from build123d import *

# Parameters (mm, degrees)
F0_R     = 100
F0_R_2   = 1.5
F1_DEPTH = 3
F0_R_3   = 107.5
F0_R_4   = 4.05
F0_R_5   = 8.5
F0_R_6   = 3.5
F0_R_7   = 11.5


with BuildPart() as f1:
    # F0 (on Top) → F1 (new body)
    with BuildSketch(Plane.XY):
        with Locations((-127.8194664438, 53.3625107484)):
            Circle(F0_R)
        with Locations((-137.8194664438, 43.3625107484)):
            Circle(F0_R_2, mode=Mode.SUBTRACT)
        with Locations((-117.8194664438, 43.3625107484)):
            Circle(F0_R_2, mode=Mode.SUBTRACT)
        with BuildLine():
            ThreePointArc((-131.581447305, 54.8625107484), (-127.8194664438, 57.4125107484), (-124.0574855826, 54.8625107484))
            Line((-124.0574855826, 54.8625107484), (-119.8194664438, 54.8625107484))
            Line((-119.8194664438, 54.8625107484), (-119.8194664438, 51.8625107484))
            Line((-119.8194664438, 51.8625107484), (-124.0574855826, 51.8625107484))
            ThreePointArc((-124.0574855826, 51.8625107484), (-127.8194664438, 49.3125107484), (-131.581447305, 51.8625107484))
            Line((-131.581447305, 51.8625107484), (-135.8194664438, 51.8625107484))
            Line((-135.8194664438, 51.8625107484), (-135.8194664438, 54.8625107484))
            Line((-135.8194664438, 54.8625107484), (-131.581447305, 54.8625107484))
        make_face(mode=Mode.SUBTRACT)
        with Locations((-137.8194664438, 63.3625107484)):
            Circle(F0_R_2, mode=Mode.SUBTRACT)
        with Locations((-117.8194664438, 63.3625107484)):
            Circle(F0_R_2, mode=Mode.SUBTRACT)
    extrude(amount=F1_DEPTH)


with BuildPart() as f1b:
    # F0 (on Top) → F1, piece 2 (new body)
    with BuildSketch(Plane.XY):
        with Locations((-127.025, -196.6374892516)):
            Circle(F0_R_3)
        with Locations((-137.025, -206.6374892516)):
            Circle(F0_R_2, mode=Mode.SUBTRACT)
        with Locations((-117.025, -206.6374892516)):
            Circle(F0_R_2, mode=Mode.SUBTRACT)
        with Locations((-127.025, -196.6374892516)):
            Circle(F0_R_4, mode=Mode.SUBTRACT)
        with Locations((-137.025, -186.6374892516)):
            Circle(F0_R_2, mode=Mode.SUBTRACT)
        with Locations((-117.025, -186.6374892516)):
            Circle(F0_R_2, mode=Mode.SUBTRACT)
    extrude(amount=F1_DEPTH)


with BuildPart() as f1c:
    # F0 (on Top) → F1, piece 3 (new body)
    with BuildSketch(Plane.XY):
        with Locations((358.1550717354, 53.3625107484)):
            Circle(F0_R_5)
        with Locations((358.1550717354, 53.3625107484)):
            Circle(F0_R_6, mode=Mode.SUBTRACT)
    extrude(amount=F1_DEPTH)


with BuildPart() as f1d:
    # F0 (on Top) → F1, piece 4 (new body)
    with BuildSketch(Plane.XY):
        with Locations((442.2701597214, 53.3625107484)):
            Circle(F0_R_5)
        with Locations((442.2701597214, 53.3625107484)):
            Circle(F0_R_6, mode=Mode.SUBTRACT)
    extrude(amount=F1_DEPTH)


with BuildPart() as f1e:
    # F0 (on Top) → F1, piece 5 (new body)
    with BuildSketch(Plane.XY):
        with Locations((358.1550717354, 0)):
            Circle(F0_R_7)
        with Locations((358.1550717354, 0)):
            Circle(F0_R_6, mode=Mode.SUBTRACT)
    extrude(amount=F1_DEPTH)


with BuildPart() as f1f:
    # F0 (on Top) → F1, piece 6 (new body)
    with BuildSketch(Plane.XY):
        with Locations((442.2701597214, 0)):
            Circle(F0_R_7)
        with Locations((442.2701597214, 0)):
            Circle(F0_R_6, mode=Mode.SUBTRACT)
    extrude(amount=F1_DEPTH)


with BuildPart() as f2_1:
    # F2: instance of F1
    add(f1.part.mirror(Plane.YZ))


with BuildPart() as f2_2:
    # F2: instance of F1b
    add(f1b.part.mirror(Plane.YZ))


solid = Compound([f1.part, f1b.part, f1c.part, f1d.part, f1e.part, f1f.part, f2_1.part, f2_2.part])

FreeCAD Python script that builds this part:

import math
import FreeCAD as App
import Part
import Sketcher

doc = App.newDocument("Part")
body = doc.addObject("PartDesign::Body", "Body")

sketch1 = doc.addObject("Sketcher::SketchObject", "Sketch")
body.addObject(sketch1)
sketch1.AttachmentSupport = (doc.XY_Plane, [""])
sketch1.MapMode = "FlatFace"
sketch1.addGeometry(Part.Circle(App.Vector(-127.8, 53.4, 0), App.Vector(0, 0, 1), 100), False)
sketch1.addGeometry(Part.Circle(App.Vector(-137.8, 43.4, 0), App.Vector(0, 0, 1), 1.5), False)
sketch1.addGeometry(Part.Circle(App.Vector(-117.8, 43.4, 0), App.Vector(0, 0, 1), 1.5), False)
sketch1.addGeometry(Part.Circle(App.Vector(-137.8, 63.4, 0), App.Vector(0, 0, 1), 1.5), False)
sketch1.addGeometry(Part.LineSegment(App.Vector(-135.8, 54.9, 0), App.Vector(-131.6, 54.9, 0)), False)
sketch1.addGeometry(Part.ArcOfCircle(Part.Circle(App.Vector(-127.8, 53.4, 0), App.Vector(0, 0, 1), 4), math.radians(22), math.radians(158)), False)
sketch1.addGeometry(Part.LineSegment(App.Vector(-124.1, 54.9, 0), App.Vector(-119.8, 54.9, 0)), False)
sketch1.addGeometry(Part.LineSegment(App.Vector(-119.8, 54.9, 0), App.Vector(-119.8, 51.9, 0)), False)
sketch1.addGeometry(Part.LineSegment(App.Vector(-119.8, 51.9, 0), App.Vector(-124.1, 51.9, 0)), False)
sketch1.addGeometry(Part.ArcOfCircle(Part.Circle(App.Vector(-127.8, 53.4, 0), App.Vector(0, 0, 1), 4), math.radians(-158), math.radians(-22)), False)
sketch1.addGeometry(Part.LineSegment(App.Vector(-131.6, 51.9, 0), App.Vector(-135.8, 51.9, 0)), False)
sketch1.addGeometry(Part.LineSegment(App.Vector(-135.8, 51.9, 0), App.Vector(-135.8, 54.9, 0)), False)
sketch1.addGeometry(Part.Circle(App.Vector(-117.8, 63.4, 0), App.Vector(0, 0, 1), 1.5), False)
sketch1.addConstraint(Sketcher.Constraint("Coincident", 4, 2, 5, 2))
sketch1.addConstraint(Sketcher.Constraint("Coincident", 5, 1, 6, 1))
sketch1.addConstraint(Sketcher.Constraint("Coincident", 6, 2, 7, 1))
sketch1.addConstraint(Sketcher.Constraint("Coincident", 7, 2, 8, 1))
sketch1.addConstraint(Sketcher.Constraint("Coincident", 8, 2, 9, 2))
sketch1.addConstraint(Sketcher.Constraint("Coincident", 9, 1, 10, 1))
sketch1.addConstraint(Sketcher.Constraint("Coincident", 10, 2, 11, 1))
sketch1.addConstraint(Sketcher.Constraint("Coincident", 11, 2, 4, 1))
sketch1.addConstraint(Sketcher.Constraint("Horizontal", 4))
sketch1.addConstraint(Sketcher.Constraint("Horizontal", 6))
sketch1.addConstraint(Sketcher.Constraint("Vertical", 7))
sketch1.addConstraint(Sketcher.Constraint("Horizontal", 8))
sketch1.addConstraint(Sketcher.Constraint("Horizontal", 10))
sketch1.addConstraint(Sketcher.Constraint("Vertical", 11))
sketch1.addConstraint(Sketcher.Constraint("Coincident", 5, 3, 0, 3))
sketch1.addConstraint(Sketcher.Constraint("Coincident", 9, 3, 0, 3))
sketch1.addConstraint(Sketcher.Constraint("Equal", 1, 2))
sketch1.addConstraint(Sketcher.Constraint("Equal", 2, 3))
sketch1.addConstraint(Sketcher.Constraint("Equal", 5, 9))
sketch1.addConstraint(Sketcher.Constraint("Equal", 3, 12))
sketch1.addConstraint(Sketcher.Constraint("Horizontal", 1, 3, 2, 3))
sketch1.addConstraint(Sketcher.Constraint("Horizontal", 3, 3, 12, 3))
sketch1.addConstraint(Sketcher.Constraint("Horizontal", 4, 2, 5, 1))
sketch1.addConstraint(Sketcher.Constraint("Horizontal", 8, 2, 9, 1))
sketch1.addConstraint(Sketcher.Constraint("Vertical", 1, 3, 3, 3))
sketch1.addConstraint(Sketcher.Constraint("Vertical", 2, 3, 12, 3))
sketch1.addConstraint(Sketcher.Constraint("Vertical", 5, 1, 8, 2))
sketch1.addConstraint(Sketcher.Constraint("Equal", 4, 6))
sketch1.addConstraint(Sketcher.Constraint("Diameter", 0, 200.0))
sketch1.addConstraint(Sketcher.Constraint("Diameter", 1, 3.0))
sketch1.addConstraint(Sketcher.Constraint("DistanceY", 7, 2, 7, 1, 3.0))
sketch1.addConstraint(Sketcher.Constraint("Radius", 5, 4.05))
sketch1.addConstraint(Sketcher.Constraint("DistanceX", 1, 3, 0, 3, 10.0))
sketch1.addConstraint(Sketcher.Constraint("DistanceY", 1, 3, 0, 3, 10.0))
sketch1.addConstraint(Sketcher.Constraint("DistanceX", 0, 3, 2, 3, 10.0))
sketch1.addConstraint(Sketcher.Constraint("DistanceY", 0, 3, 3, 3, 10.0))
sketch1.addConstraint(Sketcher.Constraint("DistanceX", 0, 3, 6, 2, 8.0))
sketch1.addConstraint(Sketcher.Constraint("DistanceY", -1, 1, 0, 3, 53.362511))
sketch1.addConstraint(Sketcher.Constraint("DistanceX", 0, 3, -1, 1, 127.819466))
pad1 = doc.addObject("PartDesign::Pad", "Pad")
body.addObject(pad1)
pad1.Profile = sketch1
pad1.Length = 3
body2 = doc.addObject("PartDesign::Body", "Body001")

sketch2 = doc.addObject("Sketcher::SketchObject", "Sketch001")
body2.addObject(sketch2)
sketch2.AttachmentSupport = (doc.getObject("XY_Plane001"), [""])
sketch2.MapMode = "FlatFace"
sketch2.addGeometry(Part.Circle(App.Vector(-127, -196.6, 0), App.Vector(0, 0, 1), 107.5), False)
sketch2.addGeometry(Part.Circle(App.Vector(-137, -206.6, 0), App.Vector(0, 0, 1), 1.5), False)
sketch2.addGeometry(Part.Circle(App.Vector(-117, -206.6, 0), App.Vector(0, 0, 1), 1.5), False)
sketch2.addGeometry(Part.Circle(App.Vector(-137, -186.6, 0), App.Vector(0, 0, 1), 1.5), False)
sketch2.addGeometry(Part.Circle(App.Vector(-127, -196.6, 0), App.Vector(0, 0, 1), 4), False)
sketch2.addGeometry(Part.Circle(App.Vector(-117, -186.6, 0), App.Vector(0, 0, 1), 1.5), False)
sketch2.addConstraint(Sketcher.Constraint("Coincident", 4, 3, 0, 3))
sketch2.addConstraint(Sketcher.Constraint("Equal", 1, 2))
sketch2.addConstraint(Sketcher.Constraint("Equal", 2, 3))
sketch2.addConstraint(Sketcher.Constraint("Equal", 3, 5))
sketch2.addConstraint(Sketcher.Constraint("Horizontal", 1, 3, 2, 3))
sketch2.addConstraint(Sketcher.Constraint("Horizontal", 3, 3, 5, 3))
sketch2.addConstraint(Sketcher.Constraint("Vertical", 1, 3, 3, 3))
sketch2.addConstraint(Sketcher.Constraint("Vertical", 2, 3, 5, 3))
sketch2.addConstraint(Sketcher.Constraint("Diameter", 0, 215.0))
sketch2.addConstraint(Sketcher.Constraint("Diameter", 1, 3.0))
sketch2.addConstraint(Sketcher.Constraint("Diameter", 4, 8.1))
sketch2.addConstraint(Sketcher.Constraint("DistanceX", 1, 3, 0, 3, 10.0))
sketch2.addConstraint(Sketcher.Constraint("DistanceY", 1, 3, 0, 3, 10.0))
sketch2.addConstraint(Sketcher.Constraint("DistanceX", 0, 3, 2, 3, 10.0))
sketch2.addConstraint(Sketcher.Constraint("DistanceY", 0, 3, 3, 3, 10.0))
sketch2.addConstraint(Sketcher.Constraint("DistanceX", 0, 3, -1, 1, 127.025))
sketch2.addConstraint(Sketcher.Constraint("DistanceY", 0, 3, -1, 1, 196.637489))
pad2 = doc.addObject("PartDesign::Pad", "Pad001")
body2.addObject(pad2)
pad2.Profile = sketch2
pad2.Length = 3
body3 = doc.addObject("PartDesign::Body", "Body002")

sketch3 = doc.addObject("Sketcher::SketchObject", "Sketch002")
body3.addObject(sketch3)
sketch3.AttachmentSupport = (doc.getObject("XY_Plane002"), [""])
sketch3.MapMode = "FlatFace"
sketch3.addGeometry(Part.Circle(App.Vector(358.2, 53.4, 0), App.Vector(0, 0, 1), 8.5), False)
sketch3.addGeometry(Part.Circle(App.Vector(358.2, 53.4, 0), App.Vector(0, 0, 1), 3.5), False)
sketch3.addConstraint(Sketcher.Constraint("Coincident", 1, 3, 0, 3))
sketch3.addConstraint(Sketcher.Constraint("Diameter", 0, 17.0))
sketch3.addConstraint(Sketcher.Constraint("Diameter", 1, 7.0))
sketch3.addConstraint(Sketcher.Constraint("DistanceX", -1, 1, 0, 3, 358.155072))
sketch3.addConstraint(Sketcher.Constraint("DistanceY", -1, 1, 0, 3, 53.362511))
pad3 = doc.addObject("PartDesign::Pad", "Pad002")
body3.addObject(pad3)
pad3.Profile = sketch3
pad3.Length = 3
body4 = doc.addObject("PartDesign::Body", "Body003")

sketch4 = doc.addObject("Sketcher::SketchObject", "Sketch003")
body4.addObject(sketch4)
sketch4.AttachmentSupport = (doc.getObject("XY_Plane003"), [""])
sketch4.MapMode = "FlatFace"
sketch4.addGeometry(Part.Circle(App.Vector(442.3, 53.4, 0), App.Vector(0, 0, 1), 8.5), False)
sketch4.addGeometry(Part.Circle(App.Vector(442.3, 53.4, 0), App.Vector(0, 0, 1), 3.5), False)
sketch4.addConstraint(Sketcher.Constraint("Coincident", 1, 3, 0, 3))
sketch4.addConstraint(Sketcher.Constraint("Diameter", 0, 17.0))
sketch4.addConstraint(Sketcher.Constraint("Diameter", 1, 7.0))
sketch4.addConstraint(Sketcher.Constraint("DistanceX", -1, 1, 0, 3, 442.27016))
sketch4.addConstraint(Sketcher.Constraint("DistanceY", -1, 1, 0, 3, 53.362511))
pad4 = doc.addObject("PartDesign::Pad", "Pad003")
body4.addObject(pad4)
pad4.Profile = sketch4
pad4.Length = 3
body5 = doc.addObject("PartDesign::Body", "Body004")

sketch5 = doc.addObject("Sketcher::SketchObject", "Sketch004")
body5.addObject(sketch5)
sketch5.AttachmentSupport = (doc.getObject("XY_Plane004"), [""])
sketch5.MapMode = "FlatFace"
sketch5.addGeometry(Part.Circle(App.Vector(358.2, 0, 0), App.Vector(0, 0, 1), 11.5), False)
sketch5.addGeometry(Part.Circle(App.Vector(358.2, 0, 0), App.Vector(0, 0, 1), 3.5), False)
sketch5.addConstraint(Sketcher.Constraint("Coincident", 1, 3, 0, 3))
sketch5.addConstraint(Sketcher.Constraint("PointOnObject", 0, 3, -1))
sketch5.addConstraint(Sketcher.Constraint("Diameter", 0, 23.0))
sketch5.addConstraint(Sketcher.Constraint("Diameter", 1, 7.0))
sketch5.addConstraint(Sketcher.Constraint("DistanceX", -1, 1, 0, 3, 358.155072))
pad5 = doc.addObject("PartDesign::Pad", "Pad004")
body5.addObject(pad5)
pad5.Profile = sketch5
pad5.Length = 3
body6 = doc.addObject("PartDesign::Body", "Body005")

sketch6 = doc.addObject("Sketcher::SketchObject", "Sketch005")
body6.addObject(sketch6)
sketch6.AttachmentSupport = (doc.getObject("XY_Plane005"), [""])
sketch6.MapMode = "FlatFace"
sketch6.addGeometry(Part.Circle(App.Vector(442.3, 0, 0), App.Vector(0, 0, 1), 11.5), False)
sketch6.addGeometry(Part.Circle(App.Vector(442.3, 0, 0), App.Vector(0, 0, 1), 3.5), False)
sketch6.addConstraint(Sketcher.Constraint("Coincident", 1, 3, 0, 3))
sketch6.addConstraint(Sketcher.Constraint("PointOnObject", 0, 3, -1))
sketch6.addConstraint(Sketcher.Constraint("Diameter", 0, 23.0))
sketch6.addConstraint(Sketcher.Constraint("Diameter", 1, 7.0))
sketch6.addConstraint(Sketcher.Constraint("DistanceX", -1, 1, 0, 3, 442.27016))
pad6 = doc.addObject("PartDesign::Pad", "Pad005")
body6.addObject(pad6)
pad6.Profile = sketch6
pad6.Length = 3
body7 = doc.addObject("PartDesign::Body", "Body006")
doc.recompute()

mirroring = doc.addObject("Part::Mirroring", "Mirroring")
mirroring.Source = body
mirroring.Base = App.Vector(0, 0, 0)
mirroring.Normal = App.Vector(1, 0, 0)
body7.BaseFeature = mirroring
doc.recompute()
body8 = doc.addObject("PartDesign::Body", "Body007")
doc.recompute()

mirroring2 = doc.addObject("Part::Mirroring", "Mirroring001")
mirroring2.Source = body2
mirroring2.Base = App.Vector(0, 0, 0)
mirroring2.Normal = App.Vector(1, 0, 0)
body8.BaseFeature = mirroring2
doc.recompute()
mirroring.Visibility = False
mirroring2.Visibility = False

doc.recompute()
